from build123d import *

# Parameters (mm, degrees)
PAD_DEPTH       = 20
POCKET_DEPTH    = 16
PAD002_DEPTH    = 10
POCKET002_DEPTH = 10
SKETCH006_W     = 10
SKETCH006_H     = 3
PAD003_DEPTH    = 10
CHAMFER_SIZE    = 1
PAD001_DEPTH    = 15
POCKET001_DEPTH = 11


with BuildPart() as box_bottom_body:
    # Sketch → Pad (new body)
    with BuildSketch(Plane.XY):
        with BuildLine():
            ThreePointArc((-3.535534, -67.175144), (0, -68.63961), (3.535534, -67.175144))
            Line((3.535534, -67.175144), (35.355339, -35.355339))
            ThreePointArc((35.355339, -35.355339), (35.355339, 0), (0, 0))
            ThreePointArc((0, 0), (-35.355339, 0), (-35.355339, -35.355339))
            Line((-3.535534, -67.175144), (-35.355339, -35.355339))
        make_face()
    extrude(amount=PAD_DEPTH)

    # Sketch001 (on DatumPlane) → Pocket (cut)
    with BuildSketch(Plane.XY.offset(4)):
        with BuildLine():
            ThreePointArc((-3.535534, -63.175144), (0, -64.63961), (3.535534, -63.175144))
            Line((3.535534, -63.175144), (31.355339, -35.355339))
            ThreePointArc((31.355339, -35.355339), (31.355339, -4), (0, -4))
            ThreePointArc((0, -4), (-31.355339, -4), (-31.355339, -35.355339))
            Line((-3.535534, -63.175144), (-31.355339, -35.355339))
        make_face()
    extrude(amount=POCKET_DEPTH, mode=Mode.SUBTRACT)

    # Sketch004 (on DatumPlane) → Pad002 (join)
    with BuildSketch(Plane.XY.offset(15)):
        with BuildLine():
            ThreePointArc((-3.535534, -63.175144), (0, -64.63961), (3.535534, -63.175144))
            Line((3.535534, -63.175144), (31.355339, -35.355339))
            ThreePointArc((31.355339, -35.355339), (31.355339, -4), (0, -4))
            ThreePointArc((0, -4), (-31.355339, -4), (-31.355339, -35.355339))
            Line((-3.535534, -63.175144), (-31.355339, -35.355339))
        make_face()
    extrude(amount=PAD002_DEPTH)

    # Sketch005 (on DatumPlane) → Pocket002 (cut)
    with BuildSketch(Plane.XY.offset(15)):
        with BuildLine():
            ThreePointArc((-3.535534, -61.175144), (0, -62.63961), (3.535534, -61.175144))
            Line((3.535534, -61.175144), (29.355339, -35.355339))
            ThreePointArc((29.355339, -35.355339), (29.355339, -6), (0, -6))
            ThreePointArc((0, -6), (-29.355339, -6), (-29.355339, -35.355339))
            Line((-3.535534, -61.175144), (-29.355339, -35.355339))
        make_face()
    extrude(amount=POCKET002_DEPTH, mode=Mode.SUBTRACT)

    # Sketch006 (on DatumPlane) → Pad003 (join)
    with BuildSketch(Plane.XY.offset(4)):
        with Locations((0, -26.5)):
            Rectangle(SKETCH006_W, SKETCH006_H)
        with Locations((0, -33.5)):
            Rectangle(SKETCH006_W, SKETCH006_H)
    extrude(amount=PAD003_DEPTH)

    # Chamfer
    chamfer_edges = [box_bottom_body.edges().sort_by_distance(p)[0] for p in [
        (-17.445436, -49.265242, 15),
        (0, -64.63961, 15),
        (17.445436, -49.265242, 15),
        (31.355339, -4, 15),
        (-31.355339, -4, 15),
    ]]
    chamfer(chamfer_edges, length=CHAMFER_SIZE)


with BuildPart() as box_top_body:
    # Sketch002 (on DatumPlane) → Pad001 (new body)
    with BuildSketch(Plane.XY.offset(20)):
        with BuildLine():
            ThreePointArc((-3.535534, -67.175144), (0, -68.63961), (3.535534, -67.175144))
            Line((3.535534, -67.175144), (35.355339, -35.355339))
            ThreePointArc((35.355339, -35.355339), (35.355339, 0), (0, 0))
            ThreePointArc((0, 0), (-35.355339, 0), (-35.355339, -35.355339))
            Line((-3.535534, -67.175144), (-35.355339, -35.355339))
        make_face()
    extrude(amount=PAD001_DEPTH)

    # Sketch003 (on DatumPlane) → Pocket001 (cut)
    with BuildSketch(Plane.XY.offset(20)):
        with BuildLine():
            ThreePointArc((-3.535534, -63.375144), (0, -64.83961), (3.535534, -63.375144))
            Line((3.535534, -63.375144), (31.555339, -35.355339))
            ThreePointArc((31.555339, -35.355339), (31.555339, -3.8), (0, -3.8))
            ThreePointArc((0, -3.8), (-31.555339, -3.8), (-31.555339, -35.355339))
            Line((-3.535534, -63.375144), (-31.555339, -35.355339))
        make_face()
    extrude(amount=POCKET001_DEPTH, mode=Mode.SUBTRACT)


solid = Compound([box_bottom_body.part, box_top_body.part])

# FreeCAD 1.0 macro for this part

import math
import FreeCAD as App
import Part
import Sketcher


def edges_at(feature, points):
    """Names of the edges that pass closest to the given points."""
    edges = feature.Shape.Edges
    near = lambda p: min(range(len(edges)), key=lambda i: edges[i].distToShape(Part.Vertex(*p))[0])
    return sorted({f"Edge{near(p) + 1}" for p in points})

doc = App.newDocument("Part")
body = doc.addObject("PartDesign::Body", "Body")

# Sketch on XY plane
sketch1 = doc.addObject("Sketcher::SketchObject", "Sketch")
body.addObject(sketch1)
sketch1.AttachmentSupport = (doc.XY_Plane, [""])
sketch1.MapMode = "FlatFace"
sketch1.addGeometry(Part.ArcOfCircle(Part.Circle(App.Vector(0, -64, 0), App.Vector(0, 0, 1), 5), math.radians(-135), math.radians(-45)), False)
sketch1.addGeometry(Part.LineSegment(App.Vector(4, -67, 0), App.Vector(35, -35, 0)), False)
sketch1.addGeometry(Part.ArcOfCircle(Part.Circle(App.Vector(18, -18, 0), App.Vector(0, 0, 1), 25), math.radians(-45), math.radians(135)), False)
sketch1.addGeometry(Part.ArcOfCircle(Part.Circle(App.Vector(-18, -18, 0), App.Vector(0, 0, 1), 25), math.radians(45), math.radians(225)), False)
sketch1.addGeometry(Part.LineSegment(App.Vector(-35, -35, 0), App.Vector(-4, -67, 0)), False)
sketch1.addConstraint(Sketcher.Constraint("Tangent", 0, 2, 1, 1))
sketch1.addConstraint(Sketcher.Constraint("Tangent", 1, 2, 2, 1))
sketch1.addConstraint(Sketcher.Constraint("Coincident", 2, 2, 3, 1))
sketch1.addConstraint(Sketcher.Constraint("Tangent", 3, 2, 4, 1))
sketch1.addConstraint(Sketcher.Constraint("Tangent", 4, 2, 0, 1))
sketch1.addConstraint(Sketcher.Constraint("Coincident", 2, 2, -1, 1))
sketch1.addConstraint(Sketcher.Constraint("Equal", 2, 3))
sketch1.addConstraint(Sketcher.Constraint("PointOnObject", 0, 3, -2))
sketch1.addConstraint(Sketcher.Constraint("Perpendicular", 1, 4))
sketch1.addConstraint(Sketcher.Constraint("Horizontal", 2, 3, 3, 3))
sketch1.addConstraint(Sketcher.Constraint("Radius", 0, 5.0))
sketch1.addConstraint(Sketcher.Constraint("Radius", 2, 25.0))
sketch1.addConstraint(Sketcher.Constraint("Distance", 1, 45.0))
pad1 = doc.addObject("PartDesign::Pad", "Pad")
body.addObject(pad1)
pad1.Profile = sketch1
pad1.Length = 20

# Sketch on XY plane
sketch2 = doc.addObject("Sketcher::SketchObject", "Sketch001")
body.addObject(sketch2)
sketch2.AttachmentSupport = (doc.XY_Plane, [""])
sketch2.MapMode = "FlatFace"
sketch2.AttachmentOffset = App.Placement(App.Vector(0, 0, 4), App.Rotation())
sketch2.addGeometry(Part.ArcOfCircle(Part.Circle(App.Vector(0, -60, 0), App.Vector(0, 0, 1), 5), math.radians(-135), math.radians(-45)), False)
sketch2.addGeometry(Part.LineSegment(App.Vector(4, -63, 0), App.Vector(31, -35, 0)), False)
sketch2.addGeometry(Part.ArcOfCircle(Part.Circle(App.Vector(16, -20, 0), App.Vector(0, 0, 1), 22), math.radians(-45), math.radians(135)), False)
sketch2.addGeometry(Part.ArcOfCircle(Part.Circle(App.Vector(-16, -20, 0), App.Vector(0, 0, 1), 22), math.radians(45), math.radians(225)), False)
sketch2.addGeometry(Part.LineSegment(App.Vector(-31, -35, 0), App.Vector(-4, -63, 0)), False)
sketch2.addConstraint(Sketcher.Constraint("Tangent", 0, 2, 1, 1))
sketch2.addConstraint(Sketcher.Constraint("Tangent", 1, 2, 2, 1))
sketch2.addConstraint(Sketcher.Constraint("Coincident", 2, 2, 3, 1))
sketch2.addConstraint(Sketcher.Constraint("Tangent", 3, 2, 4, 1))
sketch2.addConstraint(Sketcher.Constraint("Tangent", 4, 2, 0, 1))
sketch2.addConstraint(Sketcher.Constraint("Equal", 2, 3))
sketch2.addConstraint(Sketcher.Constraint("Symmetric", 2, 3, 3, 3, -2))
sketch2.addConstraint(Sketcher.Constraint("PointOnObject", 0, 3, -2))
sketch2.addConstraint(Sketcher.Constraint("Perpendicular", 1, 4))
sketch2.addConstraint(Sketcher.Constraint("Radius", 0, 5.0))
sketch2.addConstraint(Sketcher.Constraint("DistanceY", 2, 2, -1, 1, 4.0))
sketch2.addConstraint(Sketcher.Constraint("Radius", 2, 22.171573))
sketch2.addConstraint(Sketcher.Constraint("DistanceX", -1, 1, 2, 3, 15.67767))
pocket1 = doc.addObject("PartDesign::Pocket", "Pocket")
body.addObject(pocket1)
pocket1.Profile = sketch2
pocket1.Length = 16
pocket1.Reversed = True

# Sketch on XY plane
sketch3 = doc.addObject("Sketcher::SketchObject", "Sketch002")
body.addObject(sketch3)
sketch3.AttachmentSupport = (doc.XY_Plane, [""])
sketch3.MapMode = "FlatFace"
sketch3.AttachmentOffset = App.Placement(App.Vector(0, 0, 15), App.Rotation())
sketch3.addGeometry(Part.ArcOfCircle(Part.Circle(App.Vector(0, -60, 0), App.Vector(0, 0, 1), 5), math.radians(-135), math.radians(-45)), False)
sketch3.addGeometry(Part.LineSegment(App.Vector(4, -63, 0), App.Vector(31, -35, 0)), False)
sketch3.addGeometry(Part.ArcOfCircle(Part.Circle(App.Vector(16, -20, 0), App.Vector(0, 0, 1), 22), math.radians(-45), math.radians(135)), False)
sketch3.addGeometry(Part.ArcOfCircle(Part.Circle(App.Vector(-16, -20, 0), App.Vector(0, 0, 1), 22), math.radians(45), math.radians(225)), False)
sketch3.addGeometry(Part.LineSegment(App.Vector(-31, -35, 0), App.Vector(-4, -63, 0)), False)
sketch3.addConstraint(Sketcher.Constraint("Tangent", 0, 2, 1, 1))
sketch3.addConstraint(Sketcher.Constraint("Tangent", 1, 2, 2, 1))
sketch3.addConstraint(Sketcher.Constraint("Coincident", 2, 2, 3, 1))
sketch3.addConstraint(Sketcher.Constraint("Tangent", 3, 2, 4, 1))
sketch3.addConstraint(Sketcher.Constraint("Tangent", 4, 2, 0, 1))
sketch3.addConstraint(Sketcher.Constraint("Equal", 2, 3))
sketch3.addConstraint(Sketcher.Constraint("Symmetric", 2, 3, 3, 3, -2))
sketch3.addConstraint(Sketcher.Constraint("PointOnObject", 0, 3, -2))
sketch3.addConstraint(Sketcher.Constraint("Perpendicular", 1, 4))
sketch3.addConstraint(Sketcher.Constraint("Radius", 0, 5.0))
sketch3.addConstraint(Sketcher.Constraint("DistanceY", 2, 2, -1, 1, 4.0))
sketch3.addConstraint(Sketcher.Constraint("Radius", 2, 22.171573))
sketch3.addConstraint(Sketcher.Constraint("DistanceX", -1, 1, 2, 3, 15.67767))
pad2 = doc.addObject("PartDesign::Pad", "Pad001")
body.addObject(pad2)
pad2.Profile = sketch3
pad2.Length = 10

# Sketch on XY plane
sketch4 = doc.addObject("Sketcher::SketchObject", "Sketch003")
body.addObject(sketch4)
sketch4.AttachmentSupport = (doc.XY_Plane, [""])
sketch4.MapMode = "FlatFace"
sketch4.AttachmentOffset = App.Placement(App.Vector(0, 0, 15), App.Rotation())
sketch4.addGeometry(Part.ArcOfCircle(Part.Circle(App.Vector(0, -58, 0), App.Vector(0, 0, 1), 5), math.radians(-135), math.radians(-45)), False)
sketch4.addGeometry(Part.LineSegment(App.Vector(4, -61, 0), App.Vector(29, -35, 0)), False)
sketch4.addGeometry(Part.ArcOfCircle(Part.Circle(App.Vector(15, -21, 0), App.Vector(0, 0, 1), 21), math.radians(-45), math.radians(135)), False)
sketch4.addGeometry(Part.ArcOfCircle(Part.Circle(App.Vector(-15, -21, 0), App.Vector(0, 0, 1), 21), math.radians(45), math.radians(225)), False)
sketch4.addGeometry(Part.LineSegment(App.Vector(-29, -35, 0), App.Vector(-4, -61, 0)), False)
sketch4.addConstraint(Sketcher.Constraint("Tangent", 0, 2, 1, 1))
sketch4.addConstraint(Sketcher.Constraint("Tangent", 1, 2, 2, 1))
sketch4.addConstraint(Sketcher.Constraint("Coincident", 2, 2, 3, 1))
sketch4.addConstraint(Sketcher.Constraint("Tangent", 3, 2, 4, 1))
sketch4.addConstraint(Sketcher.Constraint("Tangent", 4, 2, 0, 1))
sketch4.addConstraint(Sketcher.Constraint("Equal", 2, 3))
sketch4.addConstraint(Sketcher.Constraint("Symmetric", 2, 3, 3, 3, -2))
sketch4.addConstraint(Sketcher.Constraint("PointOnObject", 0, 3, -2))
sketch4.addConstraint(Sketcher.Constraint("Perpendicular", 1, 4))
sketch4.addConstraint(Sketcher.Constraint("Radius", 0, 5.0))
sketch4.addConstraint(Sketcher.Constraint("DistanceY", 2, 2, -1, 1, 6.0))
sketch4.addConstraint(Sketcher.Constraint("Radius", 2, 20.757359))
sketch4.addConstraint(Sketcher.Constraint("Distance", 1, 36.514718))
pocket2 = doc.addObject("PartDesign::Pocket", "Pocket001")
body.addObject(pocket2)
pocket2.Profile = sketch4
pocket2.Length = 10
pocket2.Reversed = True

# Sketch on XY plane
sketch5 = doc.addObject("Sketcher::SketchObject", "Sketch004")
body.addObject(sketch5)
sketch5.AttachmentSupport = (doc.XY_Plane, [""])
sketch5.MapMode = "FlatFace"
sketch5.AttachmentOffset = App.Placement(App.Vector(0, 0, 4), App.Rotation())
sketch5.addGeometry(Part.LineSegment(App.Vector(-5, -25, 0), App.Vector(-5, -28, 0)), False)
sketch5.addGeometry(Part.LineSegment(App.Vector(-5, -28, 0), App.Vector(5, -28, 0)), False)
sketch5.addGeometry(Part.LineSegment(App.Vector(5, -28, 0), App.Vector(5, -25, 0)), False)
sketch5.addGeometry(Part.LineSegment(App.Vector(5, -25, 0), App.Vector(-5, -25, 0)), False)
sketch5.addGeometry(Part.LineSegment(App.Vector(-5, -32, 0), App.Vector(-5, -35, 0)), False)
sketch5.addGeometry(Part.LineSegment(App.Vector(-5, -35, 0), App.Vector(5, -35, 0)), False)
sketch5.addGeometry(Part.LineSegment(App.Vector(5, -35, 0), App.Vector(5, -32, 0)), False)
sketch5.addGeometry(Part.LineSegment(App.Vector(5, -32, 0), App.Vector(-5, -32, 0)), False)
sketch5.addConstraint(Sketcher.Constraint("Coincident", 0, 2, 1, 1))
sketch5.addConstraint(Sketcher.Constraint("Coincident", 1, 2, 2, 1))
sketch5.addConstraint(Sketcher.Constraint("Coincident", 2, 2, 3, 1))
sketch5.addConstraint(Sketcher.Constraint("Coincident", 3, 2, 0, 1))
sketch5.addConstraint(Sketcher.Constraint("Coincident", 4, 2, 5, 1))
sketch5.addConstraint(Sketcher.Constraint("Coincident", 5, 2, 6, 1))
sketch5.addConstraint(Sketcher.Constraint("Coincident", 6, 2, 7, 1))
sketch5.addConstraint(Sketcher.Constraint("Coincident", 7, 2, 4, 1))
sketch5.addConstraint(Sketcher.Constraint("Vertical", 0))
sketch5.addConstraint(Sketcher.Constraint("Horizontal", 1))
sketch5.addConstraint(Sketcher.Constraint("Vertical", 2))
sketch5.addConstraint(Sketcher.Constraint("Horizontal", 3))
sketch5.addConstraint(Sketcher.Constraint("Vertical", 4))
sketch5.addConstraint(Sketcher.Constraint("Horizontal", 5))
sketch5.addConstraint(Sketcher.Constraint("Vertical", 6))
sketch5.addConstraint(Sketcher.Constraint("Horizontal", 7))
sketch5.addConstraint(Sketcher.Constraint("Vertical", 3, 2, 4, 2))
sketch5.addConstraint(Sketcher.Constraint("Vertical", 2, 2, 5, 2))
sketch5.addConstraint(Sketcher.Constraint("Equal", 2, 4))
sketch5.addConstraint(Sketcher.Constraint("DistanceX", 1, 1, 1, 2, 10.0))
sketch5.addConstraint(Sketcher.Constraint("DistanceY", 0, 2, 0, 1, 3.0))
sketch5.addConstraint(Sketcher.Constraint("DistanceX", 0, 2, -1, 1, 5.0))
sketch5.addConstraint(Sketcher.Constraint("DistanceY", 0, 2, -1, 1, 28.0))
sketch5.addConstraint(Sketcher.Constraint("DistanceY", 4, 2, -1, 1, 35.0))
pad3 = doc.addObject("PartDesign::Pad", "Pad002")
body.addObject(pad3)
pad3.Profile = sketch5
pad3.Length = 10
doc.recompute()

chamfer = doc.addObject("PartDesign::Chamfer", "Chamfer")
body.addObject(chamfer)
chamfer.Base = (pad3, edges_at(pad3, [
    (-17.445, -49.265, 15),
    (0, -64.64, 15),
    (17.445, -49.265, 15),
    (31.355, -4, 15),
    (-31.355, -4, 15),
]))
chamfer.Size = 1
body2 = doc.addObject("PartDesign::Body", "Body001")

# Sketch on XY plane
sketch6 = doc.addObject("Sketcher::SketchObject", "Sketch005")
body2.addObject(sketch6)
sketch6.AttachmentSupport = (doc.getObject("XY_Plane001"), [""])
sketch6.MapMode = "FlatFace"
sketch6.AttachmentOffset = App.Placement(App.Vector(0, 0, 20), App.Rotation())
sketch6.addGeometry(Part.ArcOfCircle(Part.Circle(App.Vector(0, -64, 0), App.Vector(0, 0, 1), 5), math.radians(-135), math.radians(-45)), False)
sketch6.addGeometry(Part.LineSegment(App.Vector(4, -67, 0), App.Vector(35, -35, 0)), False)
sketch6.addGeometry(Part.ArcOfCircle(Part.Circle(App.Vector(18, -18, 0), App.Vector(0, 0, 1), 25), math.radians(-45), math.radians(135)), False)
sketch6.addGeometry(Part.ArcOfCircle(Part.Circle(App.Vector(-18, -18, 0), App.Vector(0, 0, 1), 25), math.radians(45), math.radians(225)), False)
sketch6.addGeometry(Part.LineSegment(App.Vector(-35, -35, 0), App.Vector(-4, -67, 0)), False)
sketch6.addConstraint(Sketcher.Constraint("Tangent", 0, 2, 1, 1))
sketch6.addConstraint(Sketcher.Constraint("Tangent", 1, 2, 2, 1))
sketch6.addConstraint(Sketcher.Constraint("Coincident", 2, 2, 3, 1))
sketch6.addConstraint(Sketcher.Constraint("Tangent", 3, 2, 4, 1))
sketch6.addConstraint(Sketcher.Constraint("Tangent", 4, 2, 0, 1))
sketch6.addConstraint(Sketcher.Constraint("Coincident", 2, 2, -1, 1))
sketch6.addConstraint(Sketcher.Constraint("Equal", 2, 3))
sketch6.addConstraint(Sketcher.Constraint("PointOnObject", 0, 3, -2))
sketch6.addConstraint(Sketcher.Constraint("Perpendicular", 1, 4))
sketch6.addConstraint(Sketcher.Constraint("Horizontal", 2, 3, 3, 3))
sketch6.addConstraint(Sketcher.Constraint("Radius", 0, 5.0))
sketch6.addConstraint(Sketcher.Constraint("Radius", 2, 25.0))
sketch6.addConstraint(Sketcher.Constraint("Distance", 1, 45.0))
pad4 = doc.addObject("PartDesign::Pad", "Pad003")
body2.addObject(pad4)
pad4.Profile = sketch6
pad4.Length = 15

# Sketch on XY plane
sketch7 = doc.addObject("Sketcher::SketchObject", "Sketch006")
body2.addObject(sketch7)
sketch7.AttachmentSupport = (doc.getObject("XY_Plane001"), [""])
sketch7.MapMode = "FlatFace"
sketch7.AttachmentOffset = App.Placement(App.Vector(0, 0, 20), App.Rotation())
sketch7.addGeometry(Part.ArcOfCircle(Part.Circle(App.Vector(0, -60, 0), App.Vector(0, 0, 1), 5), math.radians(-135), math.radians(-45)), False)
sketch7.addGeometry(Part.LineSegment(App.Vector(4, -63, 0), App.Vector(32, -35, 0)), False)
sketch7.addGeometry(Part.ArcOfCircle(Part.Circle(App.Vector(16, -20, 0), App.Vector(0, 0, 1), 22), math.radians(-45), math.radians(135)), False)
sketch7.addGeometry(Part.ArcOfCircle(Part.Circle(App.Vector(-16, -20, 0), App.Vector(0, 0, 1), 22), math.radians(45), math.radians(225)), False)
sketch7.addGeometry(Part.LineSegment(App.Vector(-32, -35, 0), App.Vector(-4, -63, 0)), False)
sketch7.addConstraint(Sketcher.Constraint("Tangent", 0, 2, 1, 1))
sketch7.addConstraint(Sketcher.Constraint("Tangent", 1, 2, 2, 1))
sketch7.addConstraint(Sketcher.Constraint("Coincident", 2, 2, 3, 1))
sketch7.addConstraint(Sketcher.Constraint("Tangent", 3, 2, 4, 1))
sketch7.addConstraint(Sketcher.Constraint("Tangent", 4, 2, 0, 1))
sketch7.addConstraint(Sketcher.Constraint("Equal", 2, 3))
sketch7.addConstraint(Sketcher.Constraint("Symmetric", 2, 3, 3, 3, -2))
sketch7.addConstraint(Sketcher.Constraint("PointOnObject", 0, 3, -2))
sketch7.addConstraint(Sketcher.Constraint("Perpendicular", 1, 4))
sketch7.addConstraint(Sketcher.Constraint("Radius", 0, 5.0))
sketch7.addConstraint(Sketcher.Constraint("DistanceY", 2, 2, -1, 1, 3.8))
sketch7.addConstraint(Sketcher.Constraint("Radius", 2, 22.312994))
sketch7.addConstraint(Sketcher.Constraint("Distance", 1, 39.625988))
pocket3 = doc.addObject("PartDesign::Pocket", "Pocket002")
body2.addObject(pocket3)
pocket3.Profile = sketch7
pocket3.Length = 11
pocket3.Reversed = True

doc.recompute()
